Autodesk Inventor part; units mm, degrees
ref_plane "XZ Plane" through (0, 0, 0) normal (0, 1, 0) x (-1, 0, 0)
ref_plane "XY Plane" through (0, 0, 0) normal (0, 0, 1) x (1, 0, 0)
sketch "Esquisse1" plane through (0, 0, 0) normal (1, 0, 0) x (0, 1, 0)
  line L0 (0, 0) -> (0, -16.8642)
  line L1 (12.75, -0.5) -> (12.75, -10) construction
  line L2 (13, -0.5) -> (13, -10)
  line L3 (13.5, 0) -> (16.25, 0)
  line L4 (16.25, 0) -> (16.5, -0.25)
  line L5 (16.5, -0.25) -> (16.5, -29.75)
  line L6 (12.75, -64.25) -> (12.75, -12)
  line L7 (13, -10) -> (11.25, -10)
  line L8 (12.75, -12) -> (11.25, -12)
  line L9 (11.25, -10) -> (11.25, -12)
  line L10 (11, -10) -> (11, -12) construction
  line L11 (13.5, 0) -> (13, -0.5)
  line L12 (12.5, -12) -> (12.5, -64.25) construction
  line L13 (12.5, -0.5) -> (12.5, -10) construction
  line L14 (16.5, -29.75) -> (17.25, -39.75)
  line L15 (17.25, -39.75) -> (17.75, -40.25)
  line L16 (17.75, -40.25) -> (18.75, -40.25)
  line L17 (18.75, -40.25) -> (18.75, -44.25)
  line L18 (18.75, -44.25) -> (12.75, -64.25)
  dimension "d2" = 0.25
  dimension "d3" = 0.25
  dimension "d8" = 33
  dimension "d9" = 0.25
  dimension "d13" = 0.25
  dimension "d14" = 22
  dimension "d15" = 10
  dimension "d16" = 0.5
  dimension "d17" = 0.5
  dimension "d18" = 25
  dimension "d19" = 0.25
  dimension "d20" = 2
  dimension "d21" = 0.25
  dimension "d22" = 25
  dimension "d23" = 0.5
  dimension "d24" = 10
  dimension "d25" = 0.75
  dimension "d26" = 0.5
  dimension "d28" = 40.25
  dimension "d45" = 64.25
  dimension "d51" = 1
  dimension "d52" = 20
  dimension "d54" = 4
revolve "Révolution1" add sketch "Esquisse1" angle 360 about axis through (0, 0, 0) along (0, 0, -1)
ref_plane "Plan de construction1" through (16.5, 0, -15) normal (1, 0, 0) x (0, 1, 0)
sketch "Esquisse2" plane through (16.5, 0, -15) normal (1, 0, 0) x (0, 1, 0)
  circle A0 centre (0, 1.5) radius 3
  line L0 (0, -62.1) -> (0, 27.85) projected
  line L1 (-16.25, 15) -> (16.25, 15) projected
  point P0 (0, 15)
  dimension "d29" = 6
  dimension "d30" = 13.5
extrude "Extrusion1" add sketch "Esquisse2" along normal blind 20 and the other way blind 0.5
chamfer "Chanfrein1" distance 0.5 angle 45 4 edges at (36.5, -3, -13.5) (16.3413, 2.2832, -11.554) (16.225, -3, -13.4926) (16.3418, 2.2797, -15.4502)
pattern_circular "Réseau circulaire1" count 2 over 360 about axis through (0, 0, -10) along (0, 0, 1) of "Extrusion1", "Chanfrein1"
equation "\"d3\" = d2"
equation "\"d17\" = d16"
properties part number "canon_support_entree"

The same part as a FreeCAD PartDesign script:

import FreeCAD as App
import Part
import Sketcher
Q = App.Units.Quantity


def edges_at(feature, points):
    """Names of the edges that pass closest to the given points."""
    edges = feature.Shape.Edges
    near = lambda p: min(range(len(edges)), key=lambda i: edges[i].distToShape(Part.Vertex(*p))[0])
    return sorted({f"Edge{near(p) + 1}" for p in points})

doc = App.newDocument("Part")
body = doc.addObject("PartDesign::Body", "Body")

# Sketch on YZ plane
sketch1 = body.newObject("Sketcher::SketchObject", "Sketch")
sketch1.AttachmentSupport = (doc.getObject("YZ_Plane"), [""])
sketch1.MapMode = "FlatFace"
sketch1.addGeometry(Part.LineSegment(App.Vector(13.5, 0, 0), App.Vector(13, -0.5, 0)), False)
sketch1.addGeometry(Part.LineSegment(App.Vector(13, -0.5, 0), App.Vector(13, -10, 0)), False)
sketch1.addGeometry(Part.LineSegment(App.Vector(13, -10, 0), App.Vector(11.25, -10, 0)), False)
sketch1.addGeometry(Part.LineSegment(App.Vector(11.25, -10, 0), App.Vector(11.25, -12, 0)), False)
sketch1.addGeometry(Part.LineSegment(App.Vector(11.25, -12, 0), App.Vector(12.75, -12, 0)), False)
sketch1.addGeometry(Part.LineSegment(App.Vector(12.75, -12, 0), App.Vector(12.75, -64.25, 0)), False)
sketch1.addGeometry(Part.LineSegment(App.Vector(12.75, -64.25, 0), App.Vector(18.75, -44.25, 0)), False)
sketch1.addGeometry(Part.LineSegment(App.Vector(18.75, -44.25, 0), App.Vector(18.75, -40.25, 0)), False)
sketch1.addGeometry(Part.LineSegment(App.Vector(18.75, -40.25, 0), App.Vector(17.75, -40.25, 0)), False)
sketch1.addGeometry(Part.LineSegment(App.Vector(17.75, -40.25, 0), App.Vector(17.25, -39.75, 0)), False)
sketch1.addGeometry(Part.LineSegment(App.Vector(17.25, -39.75, 0), App.Vector(16.5, -29.75, 0)), False)
sketch1.addGeometry(Part.LineSegment(App.Vector(16.5, -29.75, 0), App.Vector(16.5, -0.25, 0)), False)
sketch1.addGeometry(Part.LineSegment(App.Vector(16.5, -0.25, 0), App.Vector(16.25, 0, 0)), False)
sketch1.addGeometry(Part.LineSegment(App.Vector(16.25, 0, 0), App.Vector(13.5, 0, 0)), False)
sketch1.addConstraint(Sketcher.Constraint("Coincident", 0, 2, 1, 1))
sketch1.addConstraint(Sketcher.Constraint("Coincident", 1, 2, 2, 1))
sketch1.addConstraint(Sketcher.Constraint("Coincident", 2, 2, 3, 1))
sketch1.addConstraint(Sketcher.Constraint("Coincident", 3, 2, 4, 1))
sketch1.addConstraint(Sketcher.Constraint("Coincident", 4, 2, 5, 1))
sketch1.addConstraint(Sketcher.Constraint("Coincident", 5, 2, 6, 1))
sketch1.addConstraint(Sketcher.Constraint("Coincident", 6, 2, 7, 1))
sketch1.addConstraint(Sketcher.Constraint("Coincident", 7, 2, 8, 1))
sketch1.addConstraint(Sketcher.Constraint("Coincident", 8, 2, 9, 1))
sketch1.addConstraint(Sketcher.Constraint("Coincident", 9, 2, 10, 1))
sketch1.addConstraint(Sketcher.Constraint("Coincident", 10, 2, 11, 1))
sketch1.addConstraint(Sketcher.Constraint("Coincident", 11, 2, 12, 1))
sketch1.addConstraint(Sketcher.Constraint("Coincident", 12, 2, 13, 1))
sketch1.addConstraint(Sketcher.Constraint("Coincident", 13, 2, 0, 1))
sketch1.addConstraint(Sketcher.Constraint("Vertical", 1))
sketch1.addConstraint(Sketcher.Constraint("Horizontal", 2))
sketch1.addConstraint(Sketcher.Constraint("Vertical", 3))
sketch1.addConstraint(Sketcher.Constraint("Horizontal", 4))
sketch1.addConstraint(Sketcher.Constraint("Vertical", 5))
sketch1.addConstraint(Sketcher.Constraint("Vertical", 7))
sketch1.addConstraint(Sketcher.Constraint("Horizontal", 8))
sketch1.addConstraint(Sketcher.Constraint("Vertical", 11))
sketch1.addConstraint(Sketcher.Constraint("Horizontal", 13))
sketch1.addConstraint(Sketcher.Constraint("PointOnObject", 12, 2, -1))
sketch1.addConstraint(Sketcher.Constraint("Perpendicular", 0, 9))
sketch1.addConstraint(Sketcher.Constraint("Parallel", 9, 12))
sketch1.addConstraint(Sketcher.Constraint("Equal", 0, 9))
sketch1.addConstraint(Sketcher.Constraint("DistanceX", 8, 2, 8, 1, 1.0))
sketch1.addConstraint(Sketcher.Constraint("DistanceY", 3, 2, 3, 1, 2.0))
sketch1.addConstraint(Sketcher.Constraint("DistanceY", 7, 1, 7, 2, 4.0))
sketch1.addConstraint(Sketcher.Constraint("DistanceY", 1, 2, -1, 1, 10.0))
sketch1.addConstraint(Sketcher.Constraint("DistanceY", 5, 2, 6, 2, 20.0))
sketch1.addConstraint(Sketcher.Constraint("DistanceY", 9, 2, 10, 2, 10.0))
sketch1.addConstraint(Sketcher.Constraint("DistanceY", 0, 2, -1, 1, 0.5))
sketch1.addConstraint(Sketcher.Constraint("DistanceY", 8, 2, 9, 2, 0.5))
sketch1.addConstraint(Sketcher.Constraint("DistanceY", 5, 2, -1, 1, 64.25))
sketch1.addConstraint(Sketcher.Constraint("DistanceY", 11, 2, -1, 1, 0.25))
sketch1.addConstraint(Sketcher.Constraint("DistanceX", 4, 2, 1, 2, 0.25))
sketch1.addConstraint(Sketcher.Constraint("DistanceX", 10, 2, 9, 2, 0.75))
sketch1.addConstraint(Sketcher.Constraint("DistanceX", 4, 1, 4, 2, 1.5))
sketch1.addConstraint(Sketcher.Constraint("DistanceX", -1, 1, 0, 2, 13.0))
sketch1.addConstraint(Sketcher.Constraint("Angle", 6, Q("73.3008 deg")))
revolution = body.newObject("PartDesign::Revolution", "Revolution")
revolution.Profile = sketch1
revolution.ReferenceAxis = (sketch1, ["V_Axis"])
revolution.Angle = 360

# Sketch on YZ plane
sketch2 = body.newObject("Sketcher::SketchObject", "Sketch001")
sketch2.AttachmentSupport = (doc.getObject("YZ_Plane"), [""])
sketch2.MapMode = "FlatFace"
sketch2.AttachmentOffset = App.Placement(App.Vector(0, 0, 16.5), App.Rotation())
sketch2.addGeometry(Part.Circle(App.Vector(0, -13.5, 0), App.Vector(0, 0, 1), 3), False)
sketch2.addConstraint(Sketcher.Constraint("PointOnObject", 0, 3, -2))
sketch2.addConstraint(Sketcher.Constraint("Diameter", 0, 6.0))
sketch2.addConstraint(Sketcher.Constraint("DistanceY", 0, 3, -1, 1, 13.5))
pad1 = body.newObject("PartDesign::Pad", "Pad")
pad1.Profile = sketch2
pad1.Type = "TwoLengths"
pad1.Length = 20
pad1.Length2 = 0.5
doc.recompute()

chamfer = body.newObject("PartDesign::Chamfer", "Chamfer")
chamfer.Base = (pad1, edges_at(pad1, [
    (36.5, -3, -13.5),
    (16.341, 2.283, -11.554),
    (16.225, -3, -13.493),
    (16.342, 2.28, -15.45),
]))
chamfer.Size = 0.5
doc.recompute()

polarpattern = body.newObject("PartDesign::PolarPattern", "PolarPattern")
polarpattern.Originals = [pad1, chamfer]
polarpattern.Axis = (doc.getObject("Z_Axis"), [""])
polarpattern.Angle = 360
polarpattern.Occurrences = 2
body.Tip = polarpattern

doc.recompute()
